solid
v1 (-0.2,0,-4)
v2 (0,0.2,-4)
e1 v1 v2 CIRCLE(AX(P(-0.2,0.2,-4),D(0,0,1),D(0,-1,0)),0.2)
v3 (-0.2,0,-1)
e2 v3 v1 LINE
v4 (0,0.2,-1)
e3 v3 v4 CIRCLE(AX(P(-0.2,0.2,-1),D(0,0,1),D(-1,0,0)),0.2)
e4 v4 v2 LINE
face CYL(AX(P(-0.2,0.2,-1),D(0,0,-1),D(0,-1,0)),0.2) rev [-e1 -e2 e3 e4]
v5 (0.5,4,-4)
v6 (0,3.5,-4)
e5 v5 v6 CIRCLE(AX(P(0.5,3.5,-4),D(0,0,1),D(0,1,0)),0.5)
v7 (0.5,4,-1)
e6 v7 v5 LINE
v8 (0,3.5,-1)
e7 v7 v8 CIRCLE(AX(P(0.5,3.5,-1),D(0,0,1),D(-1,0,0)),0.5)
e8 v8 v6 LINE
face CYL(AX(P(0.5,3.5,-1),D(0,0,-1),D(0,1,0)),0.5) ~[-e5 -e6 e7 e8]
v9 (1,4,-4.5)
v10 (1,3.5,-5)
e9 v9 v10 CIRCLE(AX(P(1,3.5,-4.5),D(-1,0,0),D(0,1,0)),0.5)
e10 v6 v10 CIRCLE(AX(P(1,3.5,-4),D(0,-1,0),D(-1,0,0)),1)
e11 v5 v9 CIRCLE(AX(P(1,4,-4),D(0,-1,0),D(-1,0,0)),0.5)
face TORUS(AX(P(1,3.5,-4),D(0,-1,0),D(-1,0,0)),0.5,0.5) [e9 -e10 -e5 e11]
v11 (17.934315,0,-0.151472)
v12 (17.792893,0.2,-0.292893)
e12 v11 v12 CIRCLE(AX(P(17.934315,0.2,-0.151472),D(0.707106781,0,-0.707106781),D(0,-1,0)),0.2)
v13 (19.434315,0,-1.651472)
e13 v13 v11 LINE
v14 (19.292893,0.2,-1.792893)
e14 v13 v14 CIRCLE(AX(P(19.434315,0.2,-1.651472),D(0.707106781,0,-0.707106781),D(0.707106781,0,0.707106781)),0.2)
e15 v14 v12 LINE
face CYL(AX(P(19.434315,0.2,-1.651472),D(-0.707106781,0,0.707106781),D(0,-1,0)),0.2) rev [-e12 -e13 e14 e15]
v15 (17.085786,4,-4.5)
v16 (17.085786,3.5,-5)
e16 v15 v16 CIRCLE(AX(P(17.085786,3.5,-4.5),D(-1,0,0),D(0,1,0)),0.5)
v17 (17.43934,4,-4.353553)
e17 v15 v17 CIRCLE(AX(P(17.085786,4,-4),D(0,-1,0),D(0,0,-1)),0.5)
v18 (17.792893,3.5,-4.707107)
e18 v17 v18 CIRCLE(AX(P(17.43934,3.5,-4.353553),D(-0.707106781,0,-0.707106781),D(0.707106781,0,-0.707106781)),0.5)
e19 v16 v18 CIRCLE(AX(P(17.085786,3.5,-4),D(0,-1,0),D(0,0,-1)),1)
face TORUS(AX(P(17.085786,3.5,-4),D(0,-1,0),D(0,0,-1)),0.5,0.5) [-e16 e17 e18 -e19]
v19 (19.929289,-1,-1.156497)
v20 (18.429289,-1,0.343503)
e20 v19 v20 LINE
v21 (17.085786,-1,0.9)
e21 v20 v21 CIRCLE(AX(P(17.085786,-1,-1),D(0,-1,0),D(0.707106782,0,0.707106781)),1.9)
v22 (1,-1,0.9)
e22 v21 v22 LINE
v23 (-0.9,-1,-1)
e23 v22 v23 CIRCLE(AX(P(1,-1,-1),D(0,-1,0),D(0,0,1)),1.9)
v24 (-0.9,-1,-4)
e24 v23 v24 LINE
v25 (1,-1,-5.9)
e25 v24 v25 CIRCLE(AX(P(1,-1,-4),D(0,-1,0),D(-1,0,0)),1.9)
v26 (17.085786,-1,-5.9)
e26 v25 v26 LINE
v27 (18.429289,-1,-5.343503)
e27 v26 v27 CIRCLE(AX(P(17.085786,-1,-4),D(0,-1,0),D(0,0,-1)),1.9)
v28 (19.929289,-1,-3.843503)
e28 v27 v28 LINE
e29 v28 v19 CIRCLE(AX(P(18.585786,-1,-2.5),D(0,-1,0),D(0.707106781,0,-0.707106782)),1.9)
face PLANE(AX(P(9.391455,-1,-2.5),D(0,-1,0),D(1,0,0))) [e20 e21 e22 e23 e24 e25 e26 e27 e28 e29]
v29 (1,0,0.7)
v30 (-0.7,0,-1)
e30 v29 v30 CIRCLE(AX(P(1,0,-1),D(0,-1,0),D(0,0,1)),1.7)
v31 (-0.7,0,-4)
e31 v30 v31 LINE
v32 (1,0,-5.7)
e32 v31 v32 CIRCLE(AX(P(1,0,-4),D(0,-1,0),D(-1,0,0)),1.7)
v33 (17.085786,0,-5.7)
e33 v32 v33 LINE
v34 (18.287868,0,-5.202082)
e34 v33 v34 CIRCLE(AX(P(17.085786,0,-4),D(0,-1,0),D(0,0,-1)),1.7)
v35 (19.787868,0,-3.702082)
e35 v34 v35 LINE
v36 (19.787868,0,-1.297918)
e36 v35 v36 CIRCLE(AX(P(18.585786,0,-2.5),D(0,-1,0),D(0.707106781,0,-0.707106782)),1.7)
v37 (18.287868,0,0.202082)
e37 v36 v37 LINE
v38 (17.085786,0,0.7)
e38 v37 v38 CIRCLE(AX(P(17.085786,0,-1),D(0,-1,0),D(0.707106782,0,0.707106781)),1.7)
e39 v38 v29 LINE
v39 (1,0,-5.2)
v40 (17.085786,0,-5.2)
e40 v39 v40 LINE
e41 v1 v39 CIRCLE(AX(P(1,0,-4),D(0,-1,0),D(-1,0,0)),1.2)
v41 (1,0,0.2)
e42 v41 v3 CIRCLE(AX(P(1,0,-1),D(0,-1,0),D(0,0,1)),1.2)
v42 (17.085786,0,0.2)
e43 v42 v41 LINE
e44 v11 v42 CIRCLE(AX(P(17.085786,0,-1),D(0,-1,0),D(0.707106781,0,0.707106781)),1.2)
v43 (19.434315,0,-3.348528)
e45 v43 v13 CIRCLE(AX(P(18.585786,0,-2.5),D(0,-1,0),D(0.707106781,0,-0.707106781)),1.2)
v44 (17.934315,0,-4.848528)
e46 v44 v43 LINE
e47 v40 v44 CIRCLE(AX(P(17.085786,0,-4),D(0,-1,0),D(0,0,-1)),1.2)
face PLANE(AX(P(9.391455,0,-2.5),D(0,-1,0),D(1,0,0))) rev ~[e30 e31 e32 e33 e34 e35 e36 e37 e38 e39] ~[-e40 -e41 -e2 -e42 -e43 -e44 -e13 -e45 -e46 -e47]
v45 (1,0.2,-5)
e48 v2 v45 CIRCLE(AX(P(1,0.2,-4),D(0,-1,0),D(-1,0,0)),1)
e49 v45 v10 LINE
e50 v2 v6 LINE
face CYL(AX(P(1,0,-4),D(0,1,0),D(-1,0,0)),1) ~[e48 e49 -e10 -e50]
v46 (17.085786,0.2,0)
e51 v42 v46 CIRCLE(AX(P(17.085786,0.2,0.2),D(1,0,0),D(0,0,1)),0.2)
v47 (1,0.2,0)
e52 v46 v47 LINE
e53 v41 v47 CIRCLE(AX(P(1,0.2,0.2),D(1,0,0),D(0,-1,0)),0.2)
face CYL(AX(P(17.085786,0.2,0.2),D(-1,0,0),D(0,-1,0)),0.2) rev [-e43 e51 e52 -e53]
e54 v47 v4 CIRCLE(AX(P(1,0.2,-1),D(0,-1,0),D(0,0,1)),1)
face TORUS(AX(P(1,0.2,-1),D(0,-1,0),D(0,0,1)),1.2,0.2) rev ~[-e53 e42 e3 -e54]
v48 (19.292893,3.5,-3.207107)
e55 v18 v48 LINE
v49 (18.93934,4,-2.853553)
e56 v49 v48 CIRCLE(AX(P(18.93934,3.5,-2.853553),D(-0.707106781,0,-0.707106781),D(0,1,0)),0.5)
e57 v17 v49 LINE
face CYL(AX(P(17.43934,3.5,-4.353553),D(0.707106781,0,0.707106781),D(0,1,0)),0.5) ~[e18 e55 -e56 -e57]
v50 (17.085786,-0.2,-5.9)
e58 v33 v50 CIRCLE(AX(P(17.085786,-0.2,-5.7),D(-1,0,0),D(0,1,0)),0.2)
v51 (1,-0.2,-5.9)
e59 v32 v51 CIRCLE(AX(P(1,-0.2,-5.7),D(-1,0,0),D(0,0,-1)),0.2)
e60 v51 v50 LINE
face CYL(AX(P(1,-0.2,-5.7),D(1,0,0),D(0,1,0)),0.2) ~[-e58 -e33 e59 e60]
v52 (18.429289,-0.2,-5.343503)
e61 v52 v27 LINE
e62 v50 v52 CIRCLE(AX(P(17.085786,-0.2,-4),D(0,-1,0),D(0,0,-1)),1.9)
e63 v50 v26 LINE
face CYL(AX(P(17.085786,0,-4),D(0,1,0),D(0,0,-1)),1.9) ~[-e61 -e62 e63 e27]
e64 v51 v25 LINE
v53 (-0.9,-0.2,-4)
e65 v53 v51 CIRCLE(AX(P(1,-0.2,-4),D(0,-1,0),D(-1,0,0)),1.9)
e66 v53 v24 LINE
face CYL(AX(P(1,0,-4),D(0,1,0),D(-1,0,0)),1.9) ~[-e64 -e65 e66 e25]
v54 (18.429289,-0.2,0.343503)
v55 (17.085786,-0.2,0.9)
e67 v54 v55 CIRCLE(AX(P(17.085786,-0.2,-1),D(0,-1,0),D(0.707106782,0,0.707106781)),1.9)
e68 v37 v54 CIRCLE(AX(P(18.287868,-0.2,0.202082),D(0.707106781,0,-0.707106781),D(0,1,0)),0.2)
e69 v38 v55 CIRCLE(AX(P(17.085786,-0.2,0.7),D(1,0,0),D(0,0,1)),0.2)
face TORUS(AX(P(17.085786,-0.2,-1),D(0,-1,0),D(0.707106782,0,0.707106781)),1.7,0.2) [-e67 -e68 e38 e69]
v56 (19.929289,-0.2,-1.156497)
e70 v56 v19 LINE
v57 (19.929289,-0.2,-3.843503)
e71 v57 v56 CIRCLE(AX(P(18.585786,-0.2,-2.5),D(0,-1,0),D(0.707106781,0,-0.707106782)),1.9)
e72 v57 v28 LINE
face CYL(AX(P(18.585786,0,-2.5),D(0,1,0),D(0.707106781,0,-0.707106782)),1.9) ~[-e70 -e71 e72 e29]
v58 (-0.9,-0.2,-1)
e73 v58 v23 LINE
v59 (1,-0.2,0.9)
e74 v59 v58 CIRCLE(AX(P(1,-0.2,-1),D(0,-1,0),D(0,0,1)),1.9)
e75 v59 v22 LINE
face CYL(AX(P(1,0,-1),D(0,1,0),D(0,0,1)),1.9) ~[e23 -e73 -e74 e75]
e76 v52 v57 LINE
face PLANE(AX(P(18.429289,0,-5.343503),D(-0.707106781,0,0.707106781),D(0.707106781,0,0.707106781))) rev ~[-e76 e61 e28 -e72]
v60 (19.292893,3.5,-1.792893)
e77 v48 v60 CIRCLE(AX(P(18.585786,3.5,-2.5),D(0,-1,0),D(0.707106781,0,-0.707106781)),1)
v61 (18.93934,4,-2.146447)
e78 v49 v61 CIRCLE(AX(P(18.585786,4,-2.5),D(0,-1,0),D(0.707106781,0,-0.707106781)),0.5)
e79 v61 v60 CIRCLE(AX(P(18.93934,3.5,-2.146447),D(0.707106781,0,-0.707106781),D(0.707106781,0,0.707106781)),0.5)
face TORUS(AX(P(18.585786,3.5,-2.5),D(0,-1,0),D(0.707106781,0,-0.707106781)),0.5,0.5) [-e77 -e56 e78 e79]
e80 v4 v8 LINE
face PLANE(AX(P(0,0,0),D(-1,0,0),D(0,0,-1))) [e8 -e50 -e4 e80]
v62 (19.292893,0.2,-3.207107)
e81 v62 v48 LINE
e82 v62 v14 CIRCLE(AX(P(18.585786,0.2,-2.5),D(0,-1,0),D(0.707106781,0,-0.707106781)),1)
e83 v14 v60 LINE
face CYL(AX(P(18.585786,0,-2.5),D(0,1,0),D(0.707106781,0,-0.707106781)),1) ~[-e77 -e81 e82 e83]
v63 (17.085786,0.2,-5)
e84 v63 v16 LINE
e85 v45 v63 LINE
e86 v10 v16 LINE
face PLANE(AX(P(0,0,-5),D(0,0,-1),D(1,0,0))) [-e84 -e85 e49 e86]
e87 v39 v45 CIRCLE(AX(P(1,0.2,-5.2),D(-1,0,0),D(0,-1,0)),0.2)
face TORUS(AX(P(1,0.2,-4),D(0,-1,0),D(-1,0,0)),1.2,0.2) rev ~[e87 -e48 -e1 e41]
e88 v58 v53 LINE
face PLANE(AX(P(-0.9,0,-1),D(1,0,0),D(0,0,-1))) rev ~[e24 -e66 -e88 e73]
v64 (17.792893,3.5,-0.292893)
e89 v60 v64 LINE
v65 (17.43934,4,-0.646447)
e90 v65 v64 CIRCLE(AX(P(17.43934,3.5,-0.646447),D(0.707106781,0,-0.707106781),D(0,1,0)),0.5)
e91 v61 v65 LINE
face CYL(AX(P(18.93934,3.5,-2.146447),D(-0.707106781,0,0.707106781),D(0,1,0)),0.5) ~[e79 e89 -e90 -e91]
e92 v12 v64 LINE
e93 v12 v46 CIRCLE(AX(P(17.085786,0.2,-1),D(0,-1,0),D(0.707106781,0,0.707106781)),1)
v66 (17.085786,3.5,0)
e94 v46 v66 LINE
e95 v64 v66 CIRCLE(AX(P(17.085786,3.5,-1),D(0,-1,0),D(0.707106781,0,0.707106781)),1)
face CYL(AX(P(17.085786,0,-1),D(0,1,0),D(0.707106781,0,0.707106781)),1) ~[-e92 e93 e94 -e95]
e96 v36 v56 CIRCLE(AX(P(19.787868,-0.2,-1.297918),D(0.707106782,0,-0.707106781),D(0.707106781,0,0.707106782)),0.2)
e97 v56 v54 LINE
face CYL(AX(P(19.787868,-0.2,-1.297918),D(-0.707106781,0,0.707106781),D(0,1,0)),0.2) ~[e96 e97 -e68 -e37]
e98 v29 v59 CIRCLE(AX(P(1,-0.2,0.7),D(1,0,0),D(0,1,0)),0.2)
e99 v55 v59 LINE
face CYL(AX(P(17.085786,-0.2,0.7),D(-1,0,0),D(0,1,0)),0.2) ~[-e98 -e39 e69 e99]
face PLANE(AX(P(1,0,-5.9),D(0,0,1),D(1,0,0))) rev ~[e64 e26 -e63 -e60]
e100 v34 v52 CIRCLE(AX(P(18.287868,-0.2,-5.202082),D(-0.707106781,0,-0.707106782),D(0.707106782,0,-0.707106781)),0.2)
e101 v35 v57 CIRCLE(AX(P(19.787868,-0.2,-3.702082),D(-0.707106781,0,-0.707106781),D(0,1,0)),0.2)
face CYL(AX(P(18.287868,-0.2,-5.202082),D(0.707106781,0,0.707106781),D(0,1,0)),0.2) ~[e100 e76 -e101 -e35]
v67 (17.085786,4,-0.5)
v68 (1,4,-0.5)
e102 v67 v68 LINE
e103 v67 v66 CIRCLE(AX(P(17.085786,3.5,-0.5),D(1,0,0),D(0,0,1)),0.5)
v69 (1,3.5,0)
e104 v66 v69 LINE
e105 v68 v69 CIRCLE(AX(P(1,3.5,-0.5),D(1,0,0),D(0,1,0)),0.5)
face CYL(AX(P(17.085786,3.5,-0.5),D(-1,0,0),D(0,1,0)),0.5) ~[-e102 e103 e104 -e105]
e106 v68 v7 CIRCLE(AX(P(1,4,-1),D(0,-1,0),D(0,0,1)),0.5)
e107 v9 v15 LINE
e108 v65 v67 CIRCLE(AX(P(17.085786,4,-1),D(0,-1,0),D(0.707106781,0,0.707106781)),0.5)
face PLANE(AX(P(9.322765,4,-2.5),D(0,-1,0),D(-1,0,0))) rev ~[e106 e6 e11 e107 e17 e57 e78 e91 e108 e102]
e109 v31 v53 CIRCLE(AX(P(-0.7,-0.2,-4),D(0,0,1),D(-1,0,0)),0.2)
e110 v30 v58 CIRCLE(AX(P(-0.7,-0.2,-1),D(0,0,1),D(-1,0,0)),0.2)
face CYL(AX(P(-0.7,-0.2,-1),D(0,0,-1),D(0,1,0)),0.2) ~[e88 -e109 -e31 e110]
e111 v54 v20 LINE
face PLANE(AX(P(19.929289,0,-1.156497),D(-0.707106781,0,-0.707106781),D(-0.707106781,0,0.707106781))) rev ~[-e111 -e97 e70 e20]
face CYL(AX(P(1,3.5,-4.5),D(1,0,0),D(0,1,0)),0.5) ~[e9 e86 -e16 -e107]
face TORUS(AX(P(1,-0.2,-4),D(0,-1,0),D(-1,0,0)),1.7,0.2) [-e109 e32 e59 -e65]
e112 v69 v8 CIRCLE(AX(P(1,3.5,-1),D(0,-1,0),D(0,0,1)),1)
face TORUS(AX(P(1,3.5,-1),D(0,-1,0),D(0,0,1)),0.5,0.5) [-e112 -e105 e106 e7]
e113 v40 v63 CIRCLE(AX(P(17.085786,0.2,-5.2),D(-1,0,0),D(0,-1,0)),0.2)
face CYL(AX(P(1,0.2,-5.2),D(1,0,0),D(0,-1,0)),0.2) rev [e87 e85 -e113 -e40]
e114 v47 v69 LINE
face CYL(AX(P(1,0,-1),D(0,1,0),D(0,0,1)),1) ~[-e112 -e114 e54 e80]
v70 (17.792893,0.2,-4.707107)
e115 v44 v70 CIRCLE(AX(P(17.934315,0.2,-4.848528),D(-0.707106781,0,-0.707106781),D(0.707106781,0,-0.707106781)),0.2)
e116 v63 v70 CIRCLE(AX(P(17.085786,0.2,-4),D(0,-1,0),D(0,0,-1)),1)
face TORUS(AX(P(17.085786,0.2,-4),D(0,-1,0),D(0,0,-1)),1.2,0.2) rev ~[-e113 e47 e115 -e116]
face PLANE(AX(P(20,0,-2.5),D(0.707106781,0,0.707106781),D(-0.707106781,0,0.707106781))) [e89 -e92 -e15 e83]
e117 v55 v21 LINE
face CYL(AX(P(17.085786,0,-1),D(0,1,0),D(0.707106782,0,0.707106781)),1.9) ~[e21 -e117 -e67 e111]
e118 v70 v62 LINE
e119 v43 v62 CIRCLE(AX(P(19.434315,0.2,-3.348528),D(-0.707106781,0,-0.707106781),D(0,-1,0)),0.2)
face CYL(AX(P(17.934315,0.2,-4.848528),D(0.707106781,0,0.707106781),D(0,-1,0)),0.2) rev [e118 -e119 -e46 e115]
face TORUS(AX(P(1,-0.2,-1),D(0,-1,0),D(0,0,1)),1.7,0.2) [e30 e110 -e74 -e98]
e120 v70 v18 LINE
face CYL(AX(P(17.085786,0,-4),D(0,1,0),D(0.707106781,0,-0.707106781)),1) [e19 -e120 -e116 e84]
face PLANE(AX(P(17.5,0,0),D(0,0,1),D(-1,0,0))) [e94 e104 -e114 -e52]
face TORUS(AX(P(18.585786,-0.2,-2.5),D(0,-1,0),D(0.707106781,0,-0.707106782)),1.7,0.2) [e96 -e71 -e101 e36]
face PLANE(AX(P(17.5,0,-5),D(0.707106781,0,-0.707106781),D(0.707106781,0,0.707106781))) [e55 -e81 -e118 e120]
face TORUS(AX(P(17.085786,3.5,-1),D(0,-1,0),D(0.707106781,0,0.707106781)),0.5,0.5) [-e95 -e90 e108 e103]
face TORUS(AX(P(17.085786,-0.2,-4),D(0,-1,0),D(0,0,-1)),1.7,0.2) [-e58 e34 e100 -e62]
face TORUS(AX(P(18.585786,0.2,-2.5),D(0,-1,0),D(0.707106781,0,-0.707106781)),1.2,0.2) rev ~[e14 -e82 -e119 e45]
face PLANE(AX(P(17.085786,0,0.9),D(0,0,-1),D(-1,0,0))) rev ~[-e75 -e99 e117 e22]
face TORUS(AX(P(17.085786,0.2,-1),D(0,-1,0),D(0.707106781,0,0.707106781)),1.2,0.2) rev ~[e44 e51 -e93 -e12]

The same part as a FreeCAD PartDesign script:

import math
import FreeCAD as App
import Part
import Sketcher

V = App.Vector


def edges_at(feature, points):
    """Names of the edges that pass closest to the given points."""
    edges = feature.Shape.Edges
    near = lambda p: min(range(len(edges)), key=lambda i: edges[i].distToShape(Part.Vertex(*p))[0])
    return sorted({f"Edge{near(p) + 1}" for p in points})


def add_polygon(sketch, points):
    """Adds a closed chain of lines whose ends are joined by coincident constraints."""
    first, n = sketch.GeometryCount, len(points)
    for a, b in zip(points, points[1:] + points[:1]):
        sketch.addGeometry(Part.LineSegment(App.Vector(*a, 0), App.Vector(*b, 0)), False)
    for i in range(n):
        sketch.addConstraint(Sketcher.Constraint("Coincident", first + i, 2, first + (i + 1) % n, 1))

doc = App.newDocument("Part")
body = doc.addObject("PartDesign::Body", "Body")

# Sketch on XZ plane
sketch1 = doc.addObject("Sketcher::SketchObject", "Sketch")
body.addObject(sketch1)
sketch1.AttachmentSupport = (doc.XZ_Plane, [""])
sketch1.MapMode = "FlatFace"
add_polygon(sketch1, [(20, -2.5), (17.5, -5), (0, -5), (0, 0), (17.5, 0)])  # lines 0-4
sketch1.addConstraint([
    Sketcher.Constraint("Horizontal", 1),
    Sketcher.Constraint("Vertical", 2),
    Sketcher.Constraint("Horizontal", 3),
    Sketcher.Constraint("Coincident", 2, 2, -1, 1),
    Sketcher.Constraint("Perpendicular", 0, 4),
    Sketcher.Constraint("Vertical", 0, 2, 3, 2),
    Sketcher.Constraint("Equal", 0, 4),
    Sketcher.Constraint("DistanceY", 2, 1, 2, 2, 5.0),
    Sketcher.Constraint("DistanceX", 1, 2, 1, 1, 17.5),
])
pad1 = doc.addObject("PartDesign::Pad", "Pad")
body.addObject(pad1)
pad1.Profile = sketch1
pad1.Length = 4
pad1.Reversed = True
doc.recompute()

fillet = doc.addObject("PartDesign::Fillet", "Fillet")
body.addObject(fillet)
fillet.Base = (pad1, edges_at(pad1, [
    (0, 2, -5),
    (17.5, 2, -5),
    (20, 2, -2.5),
    (17.5, 2, 0),
    (0, 2, 0),
]))
fillet.Radius = 1
doc.recompute()

fillet2 = doc.addObject("PartDesign::Fillet", "Fillet001")
body.addObject(fillet2)
fillet2.Base = (fillet, edges_at(fillet, [
    (9.043, 4, -5),
    (18.543, 4, -3.957),
    (0, 4, -2.5),
    (9.043, 4, 0),
    (18.543, 4, -1.043),
    (19.586, 4, -2.5),
    (17.468, 4, -0.076),
    (0.293, 4, -0.293),
    (0.293, 4, -4.707),
    (17.468, 4, -4.924),
]))
fillet2.Radius = 0.5

# Sketch on XZ plane
sketch2 = doc.addObject("Sketcher::SketchObject", "Sketch001")
body.addObject(sketch2)
sketch2.AttachmentSupport = (doc.XZ_Plane, [""])
sketch2.MapMode = "FlatFace"
sketch2.addGeometry([
    Part.LineSegment(V(1, -5.9, 0), V(17.1, -5.9, 0)),  # 0
    Part.ArcOfCircle(Part.Circle(V(17.1, -4, 0), V(0, 0, 1), 1.9), math.radians(-90), math.radians(-45)),  # 1
    Part.LineSegment(V(18.4, -5.3, 0), V(19.9, -3.8, 0)),  # 2
    Part.ArcOfCircle(Part.Circle(V(18.6, -2.5, 0), V(0, 0, 1), 1.9), math.radians(-45), math.radians(45)),  # 3
    Part.LineSegment(V(19.9, -1.2, 0), V(18.4, 0.3, 0)),  # 4
    Part.ArcOfCircle(Part.Circle(V(17.1, -1, 0), V(0, 0, 1), 1.9), math.radians(45), math.radians(90)),  # 5
    Part.LineSegment(V(17.1, 0.9, 0), V(1, 0.9, 0)),  # 6
    Part.ArcOfCircle(Part.Circle(V(1, -1, 0), V(0, 0, 1), 1.9), math.radians(90), math.radians(180)),  # 7
    Part.LineSegment(V(-0.9, -1, 0), V(-0.9, -4, 0)),  # 8
    Part.ArcOfCircle(Part.Circle(V(1, -4, 0), V(0, 0, 1), 1.9), math.radians(-180), math.radians(-90)),  # 9
], False)
sketch2.addConstraint([
    Sketcher.Constraint("Tangent", 0, 2, 1, 1),
    Sketcher.Constraint("Tangent", 1, 2, 2, 1),
    Sketcher.Constraint("Tangent", 2, 2, 3, 1),
    Sketcher.Constraint("Tangent", 3, 2, 4, 1),
    Sketcher.Constraint("Tangent", 4, 2, 5, 1),
    Sketcher.Constraint("Tangent", 5, 2, 6, 1),
    Sketcher.Constraint("Tangent", 6, 2, 7, 1),
    Sketcher.Constraint("Tangent", 7, 2, 8, 1),
    Sketcher.Constraint("Tangent", 8, 2, 9, 1),
    Sketcher.Constraint("Tangent", 9, 2, 0, 1),
    Sketcher.Constraint("Horizontal", 0),
    Sketcher.Constraint("Horizontal", 6),
    Sketcher.Constraint("Vertical", 8),
    Sketcher.Constraint("Equal", 1, 3),
    Sketcher.Constraint("Equal", 3, 5),
    Sketcher.Constraint("Equal", 5, 7),
    Sketcher.Constraint("Equal", 7, 9),
    Sketcher.Constraint("Perpendicular", 2, 4),
    Sketcher.Constraint("Vertical", 1, 3, 5, 3),
    Sketcher.Constraint("Vertical", 2, 2, 3, 2),
    Sketcher.Constraint("Radius", 1, 1.9),
    Sketcher.Constraint("DistanceY", 8, 2, 8, 1, 3.0),
    Sketcher.Constraint("DistanceY", 1, 3, -1, 1, 4.0),
    Sketcher.Constraint("DistanceX", -1, 1, 7, 3, 1.0),
    Sketcher.Constraint("DistanceX", 0, 1, 0, 2, 16.085786),
])
pad2 = doc.addObject("PartDesign::Pad", "Pad001")
body.addObject(pad2)
pad2.Profile = sketch2
pad2.Length = 1
doc.recompute()

fillet3 = doc.addObject("PartDesign::Fillet", "Fillet002")
body.addObject(fillet3)
fillet3.Base = (pad2, edges_at(pad2, [
    (9.043, 0, -5),
    (0, 0, -2.5),
    (18.543, 0, -3.957),
    (18.543, 0, -1.043),
    (9.043, 0, 0),
    (19.586, 0, -2.5),
    (17.468, 0, -0.076),
    (0.293, 0, -0.293),
    (0.293, 0, -4.707),
    (17.468, 0, -4.924),
]))
fillet3.Radius = 0.2
doc.recompute()

fillet4 = doc.addObject("PartDesign::Fillet", "Fillet003")
body.addObject(fillet4)
fillet4.Base = (fillet3, edges_at(fillet3, [
    (-0.344, 0, -5.344),
    (9.043, 0, -5.9),
    (17.813, 0, -5.755),
    (19.179, 0, -4.594),
    (20.486, 0, -2.5),
    (19.179, 0, -0.406),
    (17.813, 0, 0.755),
    (9.043, 0, 0.9),
    (-0.344, 0, 0.344),
    (-0.9, 0, -2.5),
]))
fillet4.Radius = 0.2

doc.recompute()
